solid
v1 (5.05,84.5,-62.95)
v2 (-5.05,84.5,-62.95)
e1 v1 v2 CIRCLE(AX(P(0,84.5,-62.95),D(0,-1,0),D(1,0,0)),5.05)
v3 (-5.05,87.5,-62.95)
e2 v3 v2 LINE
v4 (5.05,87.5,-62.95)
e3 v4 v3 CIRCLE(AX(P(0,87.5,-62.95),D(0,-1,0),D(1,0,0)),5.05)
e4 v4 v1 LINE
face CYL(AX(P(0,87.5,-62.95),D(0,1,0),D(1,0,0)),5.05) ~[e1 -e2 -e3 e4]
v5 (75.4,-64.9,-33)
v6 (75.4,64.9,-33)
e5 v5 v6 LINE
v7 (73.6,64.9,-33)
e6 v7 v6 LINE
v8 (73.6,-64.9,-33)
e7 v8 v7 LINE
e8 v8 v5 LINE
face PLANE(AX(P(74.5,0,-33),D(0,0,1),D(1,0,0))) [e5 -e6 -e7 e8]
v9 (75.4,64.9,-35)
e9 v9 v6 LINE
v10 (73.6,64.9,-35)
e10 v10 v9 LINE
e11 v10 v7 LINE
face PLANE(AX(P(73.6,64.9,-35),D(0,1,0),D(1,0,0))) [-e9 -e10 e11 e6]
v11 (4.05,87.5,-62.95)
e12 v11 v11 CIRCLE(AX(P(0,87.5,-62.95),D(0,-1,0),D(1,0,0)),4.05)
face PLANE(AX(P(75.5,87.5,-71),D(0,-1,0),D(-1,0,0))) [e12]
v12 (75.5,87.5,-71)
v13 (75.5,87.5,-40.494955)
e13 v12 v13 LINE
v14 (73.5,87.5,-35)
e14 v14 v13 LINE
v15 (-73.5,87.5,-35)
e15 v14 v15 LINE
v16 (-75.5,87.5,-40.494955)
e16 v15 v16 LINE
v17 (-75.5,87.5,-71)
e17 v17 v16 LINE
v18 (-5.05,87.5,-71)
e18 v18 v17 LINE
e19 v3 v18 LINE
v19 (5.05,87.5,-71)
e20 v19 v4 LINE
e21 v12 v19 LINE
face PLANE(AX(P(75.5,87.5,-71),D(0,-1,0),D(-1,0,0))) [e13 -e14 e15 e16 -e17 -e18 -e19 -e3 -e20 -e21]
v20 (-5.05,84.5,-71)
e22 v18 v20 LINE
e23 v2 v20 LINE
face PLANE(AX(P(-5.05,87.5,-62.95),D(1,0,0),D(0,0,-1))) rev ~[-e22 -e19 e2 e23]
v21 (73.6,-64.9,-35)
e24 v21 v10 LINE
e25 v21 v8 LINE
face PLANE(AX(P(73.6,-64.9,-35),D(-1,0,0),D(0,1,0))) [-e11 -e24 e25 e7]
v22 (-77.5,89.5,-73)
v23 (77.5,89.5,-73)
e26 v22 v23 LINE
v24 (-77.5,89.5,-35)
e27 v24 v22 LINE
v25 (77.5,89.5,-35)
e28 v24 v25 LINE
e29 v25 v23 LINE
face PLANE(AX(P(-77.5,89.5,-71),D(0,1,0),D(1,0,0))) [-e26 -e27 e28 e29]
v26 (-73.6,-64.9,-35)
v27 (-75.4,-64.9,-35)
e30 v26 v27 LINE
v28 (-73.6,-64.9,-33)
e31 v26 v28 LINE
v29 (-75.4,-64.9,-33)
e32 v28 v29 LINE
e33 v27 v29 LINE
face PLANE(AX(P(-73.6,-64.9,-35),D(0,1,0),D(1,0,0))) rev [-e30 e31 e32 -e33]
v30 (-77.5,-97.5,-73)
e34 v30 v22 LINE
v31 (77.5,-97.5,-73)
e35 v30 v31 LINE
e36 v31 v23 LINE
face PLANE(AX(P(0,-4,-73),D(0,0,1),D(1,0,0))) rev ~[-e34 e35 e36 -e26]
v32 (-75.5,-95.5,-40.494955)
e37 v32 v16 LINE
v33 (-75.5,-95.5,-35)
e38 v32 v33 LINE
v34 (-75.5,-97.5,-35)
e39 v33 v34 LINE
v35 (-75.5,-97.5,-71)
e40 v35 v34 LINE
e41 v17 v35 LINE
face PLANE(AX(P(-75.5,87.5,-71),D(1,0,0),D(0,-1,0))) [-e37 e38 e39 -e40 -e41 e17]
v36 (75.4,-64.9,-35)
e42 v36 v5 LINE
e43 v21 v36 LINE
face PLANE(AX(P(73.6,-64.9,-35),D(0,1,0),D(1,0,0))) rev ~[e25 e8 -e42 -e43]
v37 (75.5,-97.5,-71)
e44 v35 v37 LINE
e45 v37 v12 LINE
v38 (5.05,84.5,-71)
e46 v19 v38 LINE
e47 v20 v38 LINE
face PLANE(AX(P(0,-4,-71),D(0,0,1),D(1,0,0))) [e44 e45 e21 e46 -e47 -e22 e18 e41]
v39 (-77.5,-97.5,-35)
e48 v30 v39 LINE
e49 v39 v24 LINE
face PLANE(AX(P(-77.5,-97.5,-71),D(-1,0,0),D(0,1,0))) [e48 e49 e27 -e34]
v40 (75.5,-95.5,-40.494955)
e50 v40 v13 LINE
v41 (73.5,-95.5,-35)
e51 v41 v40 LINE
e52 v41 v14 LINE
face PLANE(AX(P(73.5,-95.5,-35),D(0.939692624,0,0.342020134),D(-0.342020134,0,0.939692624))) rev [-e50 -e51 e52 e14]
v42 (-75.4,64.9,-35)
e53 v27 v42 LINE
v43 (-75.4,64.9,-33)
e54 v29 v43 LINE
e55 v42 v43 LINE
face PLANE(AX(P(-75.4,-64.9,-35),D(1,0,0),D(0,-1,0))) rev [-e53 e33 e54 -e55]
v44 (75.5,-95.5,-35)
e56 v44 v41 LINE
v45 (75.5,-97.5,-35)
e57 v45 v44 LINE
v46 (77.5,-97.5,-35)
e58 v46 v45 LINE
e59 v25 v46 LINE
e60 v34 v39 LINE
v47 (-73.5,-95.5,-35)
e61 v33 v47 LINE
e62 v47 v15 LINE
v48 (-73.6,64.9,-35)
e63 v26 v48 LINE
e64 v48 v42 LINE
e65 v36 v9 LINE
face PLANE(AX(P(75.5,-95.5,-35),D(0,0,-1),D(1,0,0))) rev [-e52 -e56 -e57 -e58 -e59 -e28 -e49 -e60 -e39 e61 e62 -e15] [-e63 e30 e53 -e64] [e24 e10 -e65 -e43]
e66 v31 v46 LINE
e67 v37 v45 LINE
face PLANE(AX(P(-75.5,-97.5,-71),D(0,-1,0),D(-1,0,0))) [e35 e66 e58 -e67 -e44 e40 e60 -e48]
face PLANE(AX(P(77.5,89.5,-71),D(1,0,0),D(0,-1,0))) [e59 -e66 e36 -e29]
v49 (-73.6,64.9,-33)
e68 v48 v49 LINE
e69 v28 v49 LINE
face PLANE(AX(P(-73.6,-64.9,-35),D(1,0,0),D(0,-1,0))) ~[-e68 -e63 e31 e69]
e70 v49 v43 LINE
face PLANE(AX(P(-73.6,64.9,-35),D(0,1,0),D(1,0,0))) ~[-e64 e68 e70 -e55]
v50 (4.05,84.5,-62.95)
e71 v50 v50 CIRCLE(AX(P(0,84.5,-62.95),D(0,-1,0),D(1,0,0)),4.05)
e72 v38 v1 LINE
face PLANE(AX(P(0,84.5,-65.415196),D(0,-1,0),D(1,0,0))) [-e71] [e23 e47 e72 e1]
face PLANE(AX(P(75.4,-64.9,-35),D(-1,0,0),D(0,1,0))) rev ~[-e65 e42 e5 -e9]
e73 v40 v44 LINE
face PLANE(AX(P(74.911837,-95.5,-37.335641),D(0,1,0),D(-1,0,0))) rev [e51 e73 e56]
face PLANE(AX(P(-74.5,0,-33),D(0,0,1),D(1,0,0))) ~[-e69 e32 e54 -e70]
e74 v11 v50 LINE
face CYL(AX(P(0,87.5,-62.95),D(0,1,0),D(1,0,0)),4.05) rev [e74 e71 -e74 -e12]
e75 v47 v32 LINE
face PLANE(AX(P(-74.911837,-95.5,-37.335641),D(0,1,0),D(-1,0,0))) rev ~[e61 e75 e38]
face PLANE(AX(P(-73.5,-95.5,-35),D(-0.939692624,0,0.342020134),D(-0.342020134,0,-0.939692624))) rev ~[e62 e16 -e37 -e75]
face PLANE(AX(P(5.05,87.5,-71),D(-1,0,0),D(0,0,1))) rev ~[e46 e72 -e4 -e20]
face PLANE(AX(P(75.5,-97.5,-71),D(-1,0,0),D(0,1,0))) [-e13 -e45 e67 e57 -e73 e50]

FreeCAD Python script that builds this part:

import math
import FreeCAD as App
import Part
import Sketcher
Q = App.Units.Quantity

doc = App.newDocument("Part")
body = doc.addObject("PartDesign::Body", "Body")

sketch1 = body.newObject("Sketcher::SketchObject", "Sketch")
sketch1.AttachmentSupport = (doc.getObject("XY_Plane"), [""])
sketch1.MapMode = "FlatFace"
sketch1.addGeometry(Part.LineSegment(App.Vector(-78, 90, 0), App.Vector(-78, -98, 0)), False)
sketch1.addGeometry(Part.LineSegment(App.Vector(-78, -98, 0), App.Vector(78, -98, 0)), False)
sketch1.addGeometry(Part.LineSegment(App.Vector(78, -98, 0), App.Vector(78, 90, 0)), False)
sketch1.addGeometry(Part.LineSegment(App.Vector(78, 90, 0), App.Vector(-78, 90, 0)), False)
sketch1.addConstraint(Sketcher.Constraint("Coincident", 0, 2, 1, 1))
sketch1.addConstraint(Sketcher.Constraint("Coincident", 1, 2, 2, 1))
sketch1.addConstraint(Sketcher.Constraint("Coincident", 2, 2, 3, 1))
sketch1.addConstraint(Sketcher.Constraint("Coincident", 3, 2, 0, 1))
sketch1.addConstraint(Sketcher.Constraint("Vertical", 0))
sketch1.addConstraint(Sketcher.Constraint("Horizontal", 1))
sketch1.addConstraint(Sketcher.Constraint("Vertical", 2))
sketch1.addConstraint(Sketcher.Constraint("Horizontal", 3))
sketch1.addConstraint(Sketcher.Constraint("DistanceX", 1, 1, 1, 2, 155.0))
sketch1.addConstraint(Sketcher.Constraint("DistanceY", 0, 2, 0, 1, 187.0))
sketch1.addConstraint(Sketcher.Constraint("DistanceX", 0, 2, -1, 1, 77.5))
sketch1.addConstraint(Sketcher.Constraint("DistanceY", 0, 2, -1, 1, 97.5))
pad1 = body.newObject("PartDesign::Pad", "Pad")
pad1.Profile = sketch1
pad1.Length = 2

sketch2 = body.newObject("Sketcher::SketchObject", "Sketch001")
sketch2.AttachmentSupport = (doc.getObject("XY_Plane"), [""])
sketch2.MapMode = "FlatFace"
sketch2.AttachmentOffset = App.Placement(App.Vector(0, 0, 2), App.Rotation())
sketch2.addGeometry(Part.LineSegment(App.Vector(-77.5, 89.5, 0), App.Vector(-77.5, -97.5, 0)), False)
sketch2.addGeometry(Part.LineSegment(App.Vector(-77.5, -97.5, 0), App.Vector(-75.5, -97.5, 0)), False)
sketch2.addGeometry(Part.LineSegment(App.Vector(-75.5, -97.5, 0), App.Vector(-75.5, 87.5, 0)), False)
sketch2.addGeometry(Part.LineSegment(App.Vector(-75.5, 87.5, 0), App.Vector(75.5, 87.5, 0)), False)
sketch2.addGeometry(Part.LineSegment(App.Vector(75.5, 87.5, 0), App.Vector(75.5, -97.5, 0)), False)
sketch2.addGeometry(Part.LineSegment(App.Vector(75.5, -97.5, 0), App.Vector(77.5, -97.5, 0)), False)
sketch2.addGeometry(Part.LineSegment(App.Vector(77.5, -97.5, 0), App.Vector(77.5, 89.5, 0)), False)
sketch2.addGeometry(Part.LineSegment(App.Vector(77.5, 89.5, 0), App.Vector(-77.5, 89.5, 0)), False)
sketch2.addConstraint(Sketcher.Constraint("Coincident", 0, 2, 1, 1))
sketch2.addConstraint(Sketcher.Constraint("Coincident", 1, 2, 2, 1))
sketch2.addConstraint(Sketcher.Constraint("Coincident", 2, 2, 3, 1))
sketch2.addConstraint(Sketcher.Constraint("Coincident", 3, 2, 4, 1))
sketch2.addConstraint(Sketcher.Constraint("Coincident", 4, 2, 5, 1))
sketch2.addConstraint(Sketcher.Constraint("Coincident", 5, 2, 6, 1))
sketch2.addConstraint(Sketcher.Constraint("Coincident", 6, 2, 7, 1))
sketch2.addConstraint(Sketcher.Constraint("Coincident", 7, 2, 0, 1))
sketch2.addConstraint(Sketcher.Constraint("Vertical", 0))
sketch2.addConstraint(Sketcher.Constraint("Horizontal", 1))
sketch2.addConstraint(Sketcher.Constraint("Vertical", 2))
sketch2.addConstraint(Sketcher.Constraint("Horizontal", 3))
sketch2.addConstraint(Sketcher.Constraint("Vertical", 4))
sketch2.addConstraint(Sketcher.Constraint("Horizontal", 5))
sketch2.addConstraint(Sketcher.Constraint("Vertical", 6))
sketch2.addConstraint(Sketcher.Constraint("Horizontal", 7))
sketch2.addConstraint(Sketcher.Constraint("Symmetric", 1, 2, 4, 2, -2))
sketch2.addConstraint(Sketcher.Constraint("Equal", 1, 5))
sketch2.addConstraint(Sketcher.Constraint("DistanceX", 1, 1, 1, 2, 2.0))
sketch2.addConstraint(Sketcher.Constraint("DistanceX", 3, 1, 3, 2, 151.0))
sketch2.addConstraint(Sketcher.Constraint("DistanceY", 0, 2, 0, 1, 187.0))
sketch2.addConstraint(Sketcher.Constraint("DistanceY", 2, 1, 2, 2, 185.0))
sketch2.addConstraint(Sketcher.Constraint("DistanceY", 0, 2, -1, 1, 97.5))
pad2 = body.newObject("PartDesign::Pad", "Pad001")
pad2.Profile = sketch2
pad2.Length = 36

sketch3 = body.newObject("Sketcher::SketchObject", "Sketch002")
sketch3.AttachmentSupport = (doc.getObject("XZ_Plane"), [""])
sketch3.MapMode = "FlatFace"
sketch3.AttachmentOffset = App.Placement(App.Vector(0, 0, 95.5), App.Rotation())
sketch3.addGeometry(Part.LineSegment(App.Vector(-75.5, 38, 0), App.Vector(-75.5, 32.5, 0)), False)
sketch3.addGeometry(Part.LineSegment(App.Vector(-75.5, 32.5, 0), App.Vector(-73.5, 38, 0)), False)
sketch3.addGeometry(Part.LineSegment(App.Vector(-73.5, 38, 0), App.Vector(-75.5, 38, 0)), False)
sketch3.addConstraint(Sketcher.Constraint("Coincident", 0, 2, 1, 1))
sketch3.addConstraint(Sketcher.Constraint("Coincident", 1, 2, 2, 1))
sketch3.addConstraint(Sketcher.Constraint("Coincident", 2, 2, 0, 1))
sketch3.addConstraint(Sketcher.Constraint("Vertical", 0))
sketch3.addConstraint(Sketcher.Constraint("Horizontal", 2))
sketch3.addConstraint(Sketcher.Constraint("DistanceX", 2, 2, 2, 1, 2.0))
sketch3.addConstraint(Sketcher.Constraint("Angle", 1, Q("70.000001 deg")))
sketch3.addConstraint(Sketcher.Constraint("DistanceY", -1, 1, 1, 2, 38.0))
sketch3.addConstraint(Sketcher.Constraint("DistanceX", 0, 2, -1, 1, 75.5))
pad3 = body.newObject("PartDesign::Pad", "Pad002")
pad3.Profile = sketch3
pad3.Length = 183
pad3.Reversed = True
doc.recompute()

mirrored = body.newObject("PartDesign::Mirrored", "Mirrored")
mirrored.Originals = [pad3]
mirrored.MirrorPlane = (doc.getObject("YZ_Plane"), [""])
body.Tip = mirrored

sketch4 = body.newObject("Sketcher::SketchObject", "Sketch003")
sketch4.AttachmentSupport = (doc.getObject("XY_Plane"), [""])
sketch4.MapMode = "FlatFace"
sketch4.AttachmentOffset = App.Placement(App.Vector(0, 0, 38), App.Rotation())
sketch4.addGeometry(Part.LineSegment(App.Vector(73.6, 64.9, 0), App.Vector(73.6, -64.9, 0)), False)
sketch4.addGeometry(Part.LineSegment(App.Vector(73.6, -64.9, 0), App.Vector(75.4, -64.9, 0)), False)
sketch4.addGeometry(Part.LineSegment(App.Vector(75.4, -64.9, 0), App.Vector(75.4, 64.9, 0)), False)
sketch4.addGeometry(Part.LineSegment(App.Vector(75.4, 64.9, 0), App.Vector(73.6, 64.9, 0)), False)
sketch4.addConstraint(Sketcher.Constraint("Coincident", 0, 2, 1, 1))
sketch4.addConstraint(Sketcher.Constraint("Coincident", 1, 2, 2, 1))
sketch4.addConstraint(Sketcher.Constraint("Coincident", 2, 2, 3, 1))
sketch4.addConstraint(Sketcher.Constraint("Coincident", 3, 2, 0, 1))
sketch4.addConstraint(Sketcher.Constraint("Vertical", 0))
sketch4.addConstraint(Sketcher.Constraint("Horizontal", 1))
sketch4.addConstraint(Sketcher.Constraint("Vertical", 2))
sketch4.addConstraint(Sketcher.Constraint("Horizontal", 3))
sketch4.addConstraint(Sketcher.Constraint("DistanceX", 1, 1, 1, 2, 1.8))
sketch4.addConstraint(Sketcher.Constraint("DistanceY", 0, 2, 0, 1, 129.8))
sketch4.addConstraint(Sketcher.Constraint("DistanceX", -1, 1, 0, 2, 73.6))
sketch4.addConstraint(Sketcher.Constraint("DistanceY", 0, 2, -1, 1, 64.9))
pad4 = body.newObject("PartDesign::Pad", "Pad003")
pad4.Profile = sketch4
pad4.Length = 2
doc.recompute()

mirrored2 = body.newObject("PartDesign::Mirrored", "Mirrored001")
mirrored2.Originals = [pad4]
mirrored2.MirrorPlane = (doc.getObject("YZ_Plane"), [""])
body.Tip = mirrored2

sketch5 = body.newObject("Sketcher::SketchObject", "Sketch004")
sketch5.AttachmentSupport = (doc.getObject("XZ_Plane"), [""])
sketch5.MapMode = "FlatFace"
sketch5.AttachmentOffset = App.Placement(App.Vector(0, 0, -87.5), App.Rotation())
sketch5.addGeometry(Part.ArcOfCircle(Part.Circle(App.Vector(0, 10.1, 0), App.Vector(0, 0, 1), 5), math.radians(0), math.radians(180)), False)
sketch5.addGeometry(Part.LineSegment(App.Vector(-5, 10.1, 0), App.Vector(-5, 2, 0)), False)
sketch5.addGeometry(Part.LineSegment(App.Vector(-5, 2, 0), App.Vector(5, 2, 0)), False)
sketch5.addGeometry(Part.LineSegment(App.Vector(5, 2, 0), App.Vector(5, 10.1, 0)), False)
sketch5.addGeometry(Part.Circle(App.Vector(0, 10.1, 0), App.Vector(0, 0, 1), 4), False)
sketch5.addConstraint(Sketcher.Constraint("Tangent", 0, 2, 1, 1))
sketch5.addConstraint(Sketcher.Constraint("Coincident", 1, 2, 2, 1))
sketch5.addConstraint(Sketcher.Constraint("Coincident", 2, 2, 3, 1))
sketch5.addConstraint(Sketcher.Constraint("Tangent", 3, 2, 0, 1))
sketch5.addConstraint(Sketcher.Constraint("Vertical", 1))
sketch5.addConstraint(Sketcher.Constraint("Horizontal", 2))
sketch5.addConstraint(Sketcher.Constraint("Vertical", 3))
sketch5.addConstraint(Sketcher.Constraint("Coincident", 4, 3, 0, 3))
sketch5.addConstraint(Sketcher.Constraint("PointOnObject", 0, 3, -2))
sketch5.addConstraint(Sketcher.Constraint("Diameter", 4, 8.1))
sketch5.addConstraint(Sketcher.Constraint("Radius", 0, 5.05))
sketch5.addConstraint(Sketcher.Constraint("DistanceY", -1, 1, 1, 2, 2.0))
sketch5.addConstraint(Sketcher.Constraint("DistanceY", 1, 2, 1, 1, 8.05))
pad5 = body.newObject("PartDesign::Pad", "Pad004")
pad5.Profile = sketch5
pad5.Length = 3
body2 = doc.addObject("PartDesign::Body", "Body001")
doc.recompute()

body.Placement = App.Placement(App.Vector(0, 0, -73), App.Rotation(App.Vector(0, 0, 1), 0))
boolean = body2.newObject("PartDesign::Boolean", "Boolean")
boolean.Type = "Fuse"
boolean.addObjects([body])

doc.recompute()
